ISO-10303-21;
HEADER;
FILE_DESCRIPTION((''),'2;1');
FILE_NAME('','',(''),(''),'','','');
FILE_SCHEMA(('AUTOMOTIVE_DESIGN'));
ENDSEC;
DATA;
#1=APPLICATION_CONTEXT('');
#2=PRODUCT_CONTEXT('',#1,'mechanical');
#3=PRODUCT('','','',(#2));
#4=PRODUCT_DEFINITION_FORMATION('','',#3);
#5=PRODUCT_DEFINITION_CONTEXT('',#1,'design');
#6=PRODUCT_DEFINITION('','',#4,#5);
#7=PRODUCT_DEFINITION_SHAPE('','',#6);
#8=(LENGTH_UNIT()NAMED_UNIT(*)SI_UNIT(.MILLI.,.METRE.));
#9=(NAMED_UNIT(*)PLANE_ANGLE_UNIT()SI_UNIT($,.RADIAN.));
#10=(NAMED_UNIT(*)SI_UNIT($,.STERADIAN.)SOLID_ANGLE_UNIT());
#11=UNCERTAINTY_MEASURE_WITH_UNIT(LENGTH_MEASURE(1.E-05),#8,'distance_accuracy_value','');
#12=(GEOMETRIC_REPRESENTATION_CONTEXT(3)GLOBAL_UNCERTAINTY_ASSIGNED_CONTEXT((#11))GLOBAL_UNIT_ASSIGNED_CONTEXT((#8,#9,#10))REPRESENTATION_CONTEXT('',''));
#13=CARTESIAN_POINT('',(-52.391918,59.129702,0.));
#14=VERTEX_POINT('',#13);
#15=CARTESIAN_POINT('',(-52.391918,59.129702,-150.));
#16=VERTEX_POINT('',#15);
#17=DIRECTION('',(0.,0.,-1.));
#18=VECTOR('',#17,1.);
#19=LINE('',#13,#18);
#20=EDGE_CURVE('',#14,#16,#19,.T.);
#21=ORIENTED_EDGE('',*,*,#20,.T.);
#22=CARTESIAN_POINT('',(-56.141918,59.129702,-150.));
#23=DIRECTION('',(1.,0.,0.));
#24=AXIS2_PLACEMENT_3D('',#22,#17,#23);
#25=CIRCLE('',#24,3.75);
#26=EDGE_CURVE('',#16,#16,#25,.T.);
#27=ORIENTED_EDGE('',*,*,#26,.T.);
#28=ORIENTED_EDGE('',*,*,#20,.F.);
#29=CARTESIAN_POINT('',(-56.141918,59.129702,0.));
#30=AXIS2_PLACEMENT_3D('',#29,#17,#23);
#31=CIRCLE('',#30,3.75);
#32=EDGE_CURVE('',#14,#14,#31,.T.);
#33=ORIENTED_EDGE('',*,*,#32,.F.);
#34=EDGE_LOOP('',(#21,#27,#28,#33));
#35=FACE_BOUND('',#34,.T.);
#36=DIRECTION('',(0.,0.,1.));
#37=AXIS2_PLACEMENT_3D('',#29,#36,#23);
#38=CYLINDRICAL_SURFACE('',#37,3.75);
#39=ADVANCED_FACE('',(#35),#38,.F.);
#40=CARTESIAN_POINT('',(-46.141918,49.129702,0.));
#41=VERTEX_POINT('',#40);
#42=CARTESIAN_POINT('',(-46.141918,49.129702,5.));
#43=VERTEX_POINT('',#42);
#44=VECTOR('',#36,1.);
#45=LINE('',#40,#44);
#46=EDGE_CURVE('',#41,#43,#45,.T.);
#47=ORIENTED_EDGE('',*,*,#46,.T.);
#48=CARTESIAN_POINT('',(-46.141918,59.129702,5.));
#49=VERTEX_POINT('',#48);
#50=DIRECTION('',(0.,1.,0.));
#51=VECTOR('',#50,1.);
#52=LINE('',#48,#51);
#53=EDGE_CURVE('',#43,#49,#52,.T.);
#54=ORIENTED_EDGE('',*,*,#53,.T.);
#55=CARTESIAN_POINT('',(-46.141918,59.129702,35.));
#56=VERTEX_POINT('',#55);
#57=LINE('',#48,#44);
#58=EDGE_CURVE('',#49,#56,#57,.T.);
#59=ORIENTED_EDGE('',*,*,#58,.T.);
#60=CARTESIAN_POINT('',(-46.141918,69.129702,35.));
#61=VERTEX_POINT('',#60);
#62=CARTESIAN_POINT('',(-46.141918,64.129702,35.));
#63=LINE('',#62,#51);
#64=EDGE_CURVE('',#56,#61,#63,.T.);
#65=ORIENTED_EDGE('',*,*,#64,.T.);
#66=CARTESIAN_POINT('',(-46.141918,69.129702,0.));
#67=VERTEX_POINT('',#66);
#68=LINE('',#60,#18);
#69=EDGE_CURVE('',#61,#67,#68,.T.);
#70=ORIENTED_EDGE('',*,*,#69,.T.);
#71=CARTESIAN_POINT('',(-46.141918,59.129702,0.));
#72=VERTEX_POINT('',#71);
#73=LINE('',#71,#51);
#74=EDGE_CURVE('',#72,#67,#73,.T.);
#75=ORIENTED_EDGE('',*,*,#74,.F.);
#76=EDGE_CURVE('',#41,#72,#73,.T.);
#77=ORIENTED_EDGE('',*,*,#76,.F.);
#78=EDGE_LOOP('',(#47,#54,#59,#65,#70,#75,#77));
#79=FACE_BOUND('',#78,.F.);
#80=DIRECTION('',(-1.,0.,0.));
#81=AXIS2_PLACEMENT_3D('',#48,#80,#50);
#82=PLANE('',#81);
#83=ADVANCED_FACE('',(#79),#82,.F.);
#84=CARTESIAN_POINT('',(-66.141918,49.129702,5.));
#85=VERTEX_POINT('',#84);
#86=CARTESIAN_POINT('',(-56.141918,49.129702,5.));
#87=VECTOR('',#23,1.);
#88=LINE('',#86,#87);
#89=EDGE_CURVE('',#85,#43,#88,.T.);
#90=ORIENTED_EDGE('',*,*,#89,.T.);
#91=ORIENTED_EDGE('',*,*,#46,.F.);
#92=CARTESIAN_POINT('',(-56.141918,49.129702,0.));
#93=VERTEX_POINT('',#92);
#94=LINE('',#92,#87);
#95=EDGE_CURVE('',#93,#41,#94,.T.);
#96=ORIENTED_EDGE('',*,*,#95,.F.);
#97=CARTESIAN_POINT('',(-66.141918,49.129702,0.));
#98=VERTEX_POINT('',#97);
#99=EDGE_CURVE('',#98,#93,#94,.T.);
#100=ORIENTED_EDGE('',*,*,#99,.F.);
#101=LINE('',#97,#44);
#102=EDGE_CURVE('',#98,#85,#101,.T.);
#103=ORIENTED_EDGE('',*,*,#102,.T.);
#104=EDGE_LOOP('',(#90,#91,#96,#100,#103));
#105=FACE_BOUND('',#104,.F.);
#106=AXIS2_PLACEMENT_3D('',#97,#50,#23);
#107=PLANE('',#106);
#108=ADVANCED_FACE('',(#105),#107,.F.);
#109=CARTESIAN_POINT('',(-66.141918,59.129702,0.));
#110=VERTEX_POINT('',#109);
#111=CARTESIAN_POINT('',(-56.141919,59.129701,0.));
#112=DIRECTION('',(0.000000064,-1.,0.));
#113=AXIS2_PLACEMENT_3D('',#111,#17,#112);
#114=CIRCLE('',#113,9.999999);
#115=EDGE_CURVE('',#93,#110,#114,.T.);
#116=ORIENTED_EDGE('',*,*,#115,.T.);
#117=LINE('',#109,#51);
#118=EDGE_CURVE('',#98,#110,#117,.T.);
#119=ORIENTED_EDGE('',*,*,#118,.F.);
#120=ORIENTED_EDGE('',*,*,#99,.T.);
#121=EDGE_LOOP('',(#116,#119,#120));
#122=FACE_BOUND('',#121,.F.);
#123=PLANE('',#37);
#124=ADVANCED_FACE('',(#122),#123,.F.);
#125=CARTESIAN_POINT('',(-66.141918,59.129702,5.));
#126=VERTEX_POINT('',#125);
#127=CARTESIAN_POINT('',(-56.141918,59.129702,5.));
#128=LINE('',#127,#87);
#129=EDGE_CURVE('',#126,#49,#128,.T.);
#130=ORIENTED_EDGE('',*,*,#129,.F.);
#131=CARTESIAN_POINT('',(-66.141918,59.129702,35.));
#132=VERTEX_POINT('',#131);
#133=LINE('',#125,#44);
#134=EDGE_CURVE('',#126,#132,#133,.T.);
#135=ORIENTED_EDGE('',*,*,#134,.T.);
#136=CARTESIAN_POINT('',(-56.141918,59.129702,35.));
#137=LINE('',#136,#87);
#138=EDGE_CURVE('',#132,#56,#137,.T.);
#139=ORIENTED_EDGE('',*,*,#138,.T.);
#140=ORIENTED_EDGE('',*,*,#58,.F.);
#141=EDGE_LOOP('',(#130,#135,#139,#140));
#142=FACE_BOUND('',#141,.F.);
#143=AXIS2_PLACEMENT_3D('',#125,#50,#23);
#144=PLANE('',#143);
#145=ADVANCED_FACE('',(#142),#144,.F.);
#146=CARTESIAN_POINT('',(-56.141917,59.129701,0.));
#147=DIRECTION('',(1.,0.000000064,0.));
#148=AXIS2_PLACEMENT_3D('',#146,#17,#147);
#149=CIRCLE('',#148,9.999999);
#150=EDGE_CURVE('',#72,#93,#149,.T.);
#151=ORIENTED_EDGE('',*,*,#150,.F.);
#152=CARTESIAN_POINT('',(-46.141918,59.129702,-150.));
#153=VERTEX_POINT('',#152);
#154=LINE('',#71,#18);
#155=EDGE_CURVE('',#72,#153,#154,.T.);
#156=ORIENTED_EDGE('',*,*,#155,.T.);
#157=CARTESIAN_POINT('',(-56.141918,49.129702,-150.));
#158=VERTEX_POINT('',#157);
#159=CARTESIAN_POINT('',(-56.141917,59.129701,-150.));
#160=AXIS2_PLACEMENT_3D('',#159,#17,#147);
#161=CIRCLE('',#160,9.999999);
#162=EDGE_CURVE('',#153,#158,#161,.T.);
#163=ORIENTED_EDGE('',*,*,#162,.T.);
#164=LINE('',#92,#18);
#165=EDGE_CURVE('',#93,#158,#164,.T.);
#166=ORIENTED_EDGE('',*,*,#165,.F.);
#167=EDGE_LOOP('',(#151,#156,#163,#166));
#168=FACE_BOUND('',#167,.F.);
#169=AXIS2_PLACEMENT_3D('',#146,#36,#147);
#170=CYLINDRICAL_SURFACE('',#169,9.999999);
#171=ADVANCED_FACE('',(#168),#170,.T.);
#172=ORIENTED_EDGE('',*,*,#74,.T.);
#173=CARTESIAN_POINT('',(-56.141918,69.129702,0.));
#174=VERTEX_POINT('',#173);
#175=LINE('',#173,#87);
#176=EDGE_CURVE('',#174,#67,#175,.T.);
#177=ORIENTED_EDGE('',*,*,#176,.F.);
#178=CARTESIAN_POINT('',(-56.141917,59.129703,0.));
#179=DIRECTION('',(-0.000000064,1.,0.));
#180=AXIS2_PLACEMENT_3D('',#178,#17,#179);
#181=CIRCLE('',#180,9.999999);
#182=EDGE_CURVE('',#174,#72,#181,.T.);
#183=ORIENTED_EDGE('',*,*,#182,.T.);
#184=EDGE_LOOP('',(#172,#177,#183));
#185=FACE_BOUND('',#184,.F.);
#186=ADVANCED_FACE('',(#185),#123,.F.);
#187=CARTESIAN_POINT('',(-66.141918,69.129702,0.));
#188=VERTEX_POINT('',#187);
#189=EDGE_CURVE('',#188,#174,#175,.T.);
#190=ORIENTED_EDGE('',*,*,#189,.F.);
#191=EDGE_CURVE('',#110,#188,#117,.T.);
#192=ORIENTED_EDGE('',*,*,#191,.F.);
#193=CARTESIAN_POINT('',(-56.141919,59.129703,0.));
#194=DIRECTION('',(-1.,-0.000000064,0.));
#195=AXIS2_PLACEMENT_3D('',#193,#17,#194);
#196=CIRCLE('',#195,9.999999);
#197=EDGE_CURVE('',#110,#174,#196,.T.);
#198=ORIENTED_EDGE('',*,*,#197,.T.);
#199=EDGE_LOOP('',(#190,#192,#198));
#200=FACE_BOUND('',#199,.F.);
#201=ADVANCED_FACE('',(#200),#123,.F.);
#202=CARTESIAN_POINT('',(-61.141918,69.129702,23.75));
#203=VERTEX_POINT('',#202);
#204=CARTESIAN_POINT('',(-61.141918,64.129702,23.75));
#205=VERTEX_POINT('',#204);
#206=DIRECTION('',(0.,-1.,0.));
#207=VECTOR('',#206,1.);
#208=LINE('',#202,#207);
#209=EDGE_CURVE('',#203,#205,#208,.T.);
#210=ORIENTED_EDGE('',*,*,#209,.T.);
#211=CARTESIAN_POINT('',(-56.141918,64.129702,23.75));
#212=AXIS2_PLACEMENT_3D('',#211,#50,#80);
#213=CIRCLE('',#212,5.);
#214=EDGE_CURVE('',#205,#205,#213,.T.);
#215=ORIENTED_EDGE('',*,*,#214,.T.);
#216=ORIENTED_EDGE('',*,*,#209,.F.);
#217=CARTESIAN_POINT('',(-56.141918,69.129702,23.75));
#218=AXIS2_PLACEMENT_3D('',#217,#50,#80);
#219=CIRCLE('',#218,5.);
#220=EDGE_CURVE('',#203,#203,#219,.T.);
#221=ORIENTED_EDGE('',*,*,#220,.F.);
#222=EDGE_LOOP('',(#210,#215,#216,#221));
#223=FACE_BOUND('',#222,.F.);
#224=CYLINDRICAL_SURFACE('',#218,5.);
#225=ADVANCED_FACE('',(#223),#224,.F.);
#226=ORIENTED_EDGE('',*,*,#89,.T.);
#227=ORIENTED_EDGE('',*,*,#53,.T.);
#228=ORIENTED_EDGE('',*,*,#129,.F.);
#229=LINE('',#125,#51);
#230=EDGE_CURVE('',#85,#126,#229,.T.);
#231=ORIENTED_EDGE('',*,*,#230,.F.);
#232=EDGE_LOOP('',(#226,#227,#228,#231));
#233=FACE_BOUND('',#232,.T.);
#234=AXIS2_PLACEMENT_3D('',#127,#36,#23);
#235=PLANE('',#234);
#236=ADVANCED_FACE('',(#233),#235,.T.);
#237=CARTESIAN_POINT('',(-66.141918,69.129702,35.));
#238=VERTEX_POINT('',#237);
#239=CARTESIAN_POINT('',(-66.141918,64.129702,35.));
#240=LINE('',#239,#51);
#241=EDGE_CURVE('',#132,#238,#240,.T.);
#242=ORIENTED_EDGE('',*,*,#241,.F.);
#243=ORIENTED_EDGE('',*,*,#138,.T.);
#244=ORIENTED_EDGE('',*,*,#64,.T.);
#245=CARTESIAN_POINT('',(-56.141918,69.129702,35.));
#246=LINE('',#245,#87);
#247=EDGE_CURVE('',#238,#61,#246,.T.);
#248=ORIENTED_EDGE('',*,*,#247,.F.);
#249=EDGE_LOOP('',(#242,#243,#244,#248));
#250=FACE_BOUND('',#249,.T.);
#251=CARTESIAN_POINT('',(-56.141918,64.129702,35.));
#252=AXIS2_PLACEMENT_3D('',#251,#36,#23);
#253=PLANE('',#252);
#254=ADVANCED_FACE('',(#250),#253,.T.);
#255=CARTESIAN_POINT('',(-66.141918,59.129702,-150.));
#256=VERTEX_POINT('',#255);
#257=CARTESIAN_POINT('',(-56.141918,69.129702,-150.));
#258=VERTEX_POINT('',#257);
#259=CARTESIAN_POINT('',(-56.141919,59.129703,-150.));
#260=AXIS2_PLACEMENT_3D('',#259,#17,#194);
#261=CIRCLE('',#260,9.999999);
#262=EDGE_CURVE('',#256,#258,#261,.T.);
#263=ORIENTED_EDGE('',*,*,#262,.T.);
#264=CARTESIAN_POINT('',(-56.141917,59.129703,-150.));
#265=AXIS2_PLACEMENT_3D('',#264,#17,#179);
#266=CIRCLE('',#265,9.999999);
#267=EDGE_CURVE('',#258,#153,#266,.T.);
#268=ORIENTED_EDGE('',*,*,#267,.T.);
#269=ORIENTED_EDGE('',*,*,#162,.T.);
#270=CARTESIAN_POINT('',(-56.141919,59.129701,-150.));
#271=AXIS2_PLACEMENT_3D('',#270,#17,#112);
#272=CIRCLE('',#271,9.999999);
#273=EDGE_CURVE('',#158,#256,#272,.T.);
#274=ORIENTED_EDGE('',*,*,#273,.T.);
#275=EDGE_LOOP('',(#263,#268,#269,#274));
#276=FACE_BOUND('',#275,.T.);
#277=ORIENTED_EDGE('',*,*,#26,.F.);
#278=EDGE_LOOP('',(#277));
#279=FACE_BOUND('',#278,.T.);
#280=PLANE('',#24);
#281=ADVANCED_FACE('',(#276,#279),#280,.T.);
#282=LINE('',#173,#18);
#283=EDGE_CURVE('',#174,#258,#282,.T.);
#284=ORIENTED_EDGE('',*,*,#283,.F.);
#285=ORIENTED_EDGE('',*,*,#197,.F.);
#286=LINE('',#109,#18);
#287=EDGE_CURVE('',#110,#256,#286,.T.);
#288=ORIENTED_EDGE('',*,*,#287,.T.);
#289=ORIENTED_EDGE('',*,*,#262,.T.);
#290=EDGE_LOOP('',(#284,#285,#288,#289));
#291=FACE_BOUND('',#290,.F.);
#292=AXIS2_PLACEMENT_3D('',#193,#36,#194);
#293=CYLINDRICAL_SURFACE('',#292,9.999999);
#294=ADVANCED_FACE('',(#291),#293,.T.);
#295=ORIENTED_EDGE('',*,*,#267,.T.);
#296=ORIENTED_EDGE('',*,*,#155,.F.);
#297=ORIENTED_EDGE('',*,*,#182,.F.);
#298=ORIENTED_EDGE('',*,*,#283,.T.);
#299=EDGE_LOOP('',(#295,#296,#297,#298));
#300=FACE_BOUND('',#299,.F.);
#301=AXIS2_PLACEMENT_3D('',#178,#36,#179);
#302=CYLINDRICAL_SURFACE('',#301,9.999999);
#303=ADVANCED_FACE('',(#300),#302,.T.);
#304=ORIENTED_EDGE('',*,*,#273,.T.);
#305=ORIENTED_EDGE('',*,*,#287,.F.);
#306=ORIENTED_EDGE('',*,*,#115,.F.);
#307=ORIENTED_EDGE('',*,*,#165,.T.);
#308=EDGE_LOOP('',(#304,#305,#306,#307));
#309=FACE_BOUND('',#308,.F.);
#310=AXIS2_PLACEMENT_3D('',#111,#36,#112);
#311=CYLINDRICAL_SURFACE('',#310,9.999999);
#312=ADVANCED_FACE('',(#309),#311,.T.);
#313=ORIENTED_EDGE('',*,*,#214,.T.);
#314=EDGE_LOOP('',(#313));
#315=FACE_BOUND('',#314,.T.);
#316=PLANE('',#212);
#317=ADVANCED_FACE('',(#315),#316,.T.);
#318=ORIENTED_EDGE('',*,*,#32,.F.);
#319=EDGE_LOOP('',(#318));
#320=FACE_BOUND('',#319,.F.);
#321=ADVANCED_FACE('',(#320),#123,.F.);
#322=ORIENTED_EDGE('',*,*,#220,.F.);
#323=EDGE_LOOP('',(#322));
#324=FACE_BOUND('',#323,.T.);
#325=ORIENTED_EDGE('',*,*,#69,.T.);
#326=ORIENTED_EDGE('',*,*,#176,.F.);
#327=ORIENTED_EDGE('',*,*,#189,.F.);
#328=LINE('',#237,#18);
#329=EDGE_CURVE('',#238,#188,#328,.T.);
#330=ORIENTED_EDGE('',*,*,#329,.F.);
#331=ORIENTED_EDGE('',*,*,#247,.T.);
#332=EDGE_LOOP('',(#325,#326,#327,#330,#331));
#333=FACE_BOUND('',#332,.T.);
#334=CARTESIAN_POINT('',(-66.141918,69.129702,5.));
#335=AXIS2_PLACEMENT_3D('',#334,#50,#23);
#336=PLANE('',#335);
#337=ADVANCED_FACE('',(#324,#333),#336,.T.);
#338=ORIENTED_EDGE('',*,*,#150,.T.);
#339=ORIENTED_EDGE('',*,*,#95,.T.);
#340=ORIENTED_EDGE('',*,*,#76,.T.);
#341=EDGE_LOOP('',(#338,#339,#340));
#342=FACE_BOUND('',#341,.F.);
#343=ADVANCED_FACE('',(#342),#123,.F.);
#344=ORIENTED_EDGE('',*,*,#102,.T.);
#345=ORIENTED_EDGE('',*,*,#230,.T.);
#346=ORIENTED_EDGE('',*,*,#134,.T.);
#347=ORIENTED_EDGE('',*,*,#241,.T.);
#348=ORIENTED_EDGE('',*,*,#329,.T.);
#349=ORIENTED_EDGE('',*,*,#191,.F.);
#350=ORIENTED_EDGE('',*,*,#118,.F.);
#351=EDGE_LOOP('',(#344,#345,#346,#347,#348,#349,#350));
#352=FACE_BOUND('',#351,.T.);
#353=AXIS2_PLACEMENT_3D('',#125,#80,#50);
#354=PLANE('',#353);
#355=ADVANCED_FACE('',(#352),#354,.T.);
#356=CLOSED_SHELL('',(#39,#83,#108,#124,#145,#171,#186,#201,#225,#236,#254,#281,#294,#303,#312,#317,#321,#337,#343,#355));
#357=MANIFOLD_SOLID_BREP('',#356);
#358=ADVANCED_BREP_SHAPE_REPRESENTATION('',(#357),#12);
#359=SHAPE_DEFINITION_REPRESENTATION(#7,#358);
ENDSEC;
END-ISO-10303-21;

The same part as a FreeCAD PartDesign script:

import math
import FreeCAD as App
import Part
import Sketcher
Q = App.Units.Quantity

doc = App.newDocument("Part")
body = doc.addObject("PartDesign::Body", "Body")

# Sketch on XY plane
sketch1 = body.newObject("Sketcher::SketchObject", "Sketch")
sketch1.AttachmentSupport = (doc.getObject("XY_Plane"), [""])
sketch1.MapMode = "FlatFace"
sketch1.addGeometry([
    Part.LineSegment(App.Vector(-66, 69, 0), App.Vector(-66, 49, 0)),
    Part.LineSegment(App.Vector(-66, 49, 0), App.Vector(-46, 49, 0)),
    Part.LineSegment(App.Vector(-46, 49, 0), App.Vector(-46, 69, 0)),
    Part.LineSegment(App.Vector(-46, 69, 0), App.Vector(-66, 69, 0)),
], False)
sketch1.addConstraint([
    Sketcher.Constraint("Coincident", 0, 2, 1, 1),
    Sketcher.Constraint("Coincident", 1, 2, 2, 1),
    Sketcher.Constraint("Coincident", 2, 2, 3, 1),
    Sketcher.Constraint("Coincident", 3, 2, 0, 1),
    Sketcher.Constraint("Vertical", 0),
    Sketcher.Constraint("Horizontal", 1),
    Sketcher.Constraint("Vertical", 2),
    Sketcher.Constraint("Horizontal", 3),
    Sketcher.Constraint("Equal", 3, 0),
    Sketcher.Constraint("DistanceX", 1, 1, 1, 2, Q("20 mm")),
    Sketcher.Constraint("DistanceY", -1, 1, 2, 2, Q("69.129702 mm")),
    Sketcher.Constraint("DistanceX", 0, 2, -1, 1, Q("66.141918 mm")),
])
pad1 = body.newObject("PartDesign::Pad", "Pad")
pad1.Profile = sketch1
pad1.Length = 5

# Sketch on XY plane
sketch2 = body.newObject("Sketcher::SketchObject", "Sketch001")
sketch2.AttachmentSupport = (doc.getObject("XY_Plane"), [""])
sketch2.MapMode = "FlatFace"
sketch2.addGeometry([
    Part.ArcOfCircle(Part.Circle(App.Vector(-56.1, 59.1, 0), App.Vector(0, 0, 1), 10), math.radians(0), math.radians(90)),  # 0
    Part.ArcOfCircle(Part.Circle(App.Vector(-56.1, 59.1, 0), App.Vector(0, 0, 1), 10), math.radians(-90), math.radians(0)),  # 1
    Part.ArcOfCircle(Part.Circle(App.Vector(-56.1, 59.1, 0), App.Vector(0, 0, 1), 10), math.radians(180), math.radians(270)),  # 2
    Part.ArcOfCircle(Part.Circle(App.Vector(-56.1, 59.1, 0), App.Vector(0, 0, 1), 10), math.radians(90), math.radians(180)),  # 3
    Part.Circle(App.Vector(-56.1, 59.1, 0), App.Vector(0, 0, 1), 3.8),  # 4
], False)
sketch2.addConstraint([
    Sketcher.Constraint("Tangent", 0, 1, 1, 2),
    Sketcher.Constraint("Tangent", 1, 1, 2, 2),
    Sketcher.Constraint("Tangent", 2, 1, 3, 2),
    Sketcher.Constraint("Tangent", 3, 1, 0, 2),
    Sketcher.Constraint("Coincident", 4, 3, 0, 3),
    Sketcher.Constraint("Equal", 0, 1),
    Sketcher.Constraint("Horizontal", 4, 3, 0, 1),
    Sketcher.Constraint("Horizontal", 0, 1, 2, 1),
    Sketcher.Constraint("Vertical", 4, 3, 1, 1),
    Sketcher.Constraint("Vertical", 1, 1, 3, 1),
    Sketcher.Constraint("Radius", 0, Q("9.999999 mm")),
    Sketcher.Constraint("Diameter", 4, Q("7.5 mm")),
    Sketcher.Constraint("DistanceY", -1, 1, 1, 3, Q("59.129701 mm")),
    Sketcher.Constraint("DistanceX", 2, 3, -1, 1, Q("56.141919 mm")),
])
pad2 = body.newObject("PartDesign::Pad", "Pad001")
pad2.Profile = sketch2
pad2.Length = 150
pad2.Reversed = True

# Sketch on XY plane
sketch3 = body.newObject("Sketcher::SketchObject", "Sketch002")
sketch3.AttachmentSupport = (doc.getObject("XY_Plane"), [""])
sketch3.MapMode = "FlatFace"
sketch3.AttachmentOffset = App.Placement(App.Vector(0, 0, 5), App.Rotation())
sketch3.addGeometry([
    Part.LineSegment(App.Vector(-66, 69, 0), App.Vector(-66, 59, 0)),
    Part.LineSegment(App.Vector(-66, 59, 0), App.Vector(-46, 59, 0)),
    Part.LineSegment(App.Vector(-46, 59, 0), App.Vector(-46, 69, 0)),
    Part.LineSegment(App.Vector(-46, 69, 0), App.Vector(-66, 69, 0)),
], False)
sketch3.addConstraint([
    Sketcher.Constraint("Coincident", 0, 2, 1, 1),
    Sketcher.Constraint("Coincident", 1, 2, 2, 1),
    Sketcher.Constraint("Coincident", 2, 2, 3, 1),
    Sketcher.Constraint("Coincident", 3, 2, 0, 1),
    Sketcher.Constraint("Vertical", 0),
    Sketcher.Constraint("Horizontal", 1),
    Sketcher.Constraint("Vertical", 2),
    Sketcher.Constraint("Horizontal", 3),
    Sketcher.Constraint("DistanceX", 1, 1, 1, 2, Q("20 mm")),
    Sketcher.Constraint("DistanceY", 0, 2, 0, 1, Q("10 mm")),
    Sketcher.Constraint("DistanceY", -1, 1, 2, 2, Q("69.129702 mm")),
    Sketcher.Constraint("DistanceX", 0, 2, -1, 1, Q("66.141918 mm")),
])
pad3 = body.newObject("PartDesign::Pad", "Pad002")
pad3.Profile = sketch3
pad3.Length = 30

# Sketch on XZ plane
sketch4 = body.newObject("Sketcher::SketchObject", "Sketch003")
sketch4.AttachmentSupport = (doc.getObject("XZ_Plane"), [""])
sketch4.MapMode = "FlatFace"
sketch4.AttachmentOffset = App.Placement(App.Vector(0, 0, -69.129702), App.Rotation())
sketch4.addGeometry(Part.Circle(App.Vector(-56, 24, 0), App.Vector(0, 0, 1), 5), False)
sketch4.addConstraint([
    Sketcher.Constraint("Diameter", 0, Q("10 mm")),
    Sketcher.Constraint("DistanceY", -1, 1, 0, 3, Q("23.75 mm")),
    Sketcher.Constraint("DistanceX", 0, 3, -1, 1, Q("56.141918 mm")),
])
pocket1 = body.newObject("PartDesign::Pocket", "Pocket")
pocket1.Profile = sketch4
pocket1.Length = 5
pocket1.Reversed = True

doc.recompute()
